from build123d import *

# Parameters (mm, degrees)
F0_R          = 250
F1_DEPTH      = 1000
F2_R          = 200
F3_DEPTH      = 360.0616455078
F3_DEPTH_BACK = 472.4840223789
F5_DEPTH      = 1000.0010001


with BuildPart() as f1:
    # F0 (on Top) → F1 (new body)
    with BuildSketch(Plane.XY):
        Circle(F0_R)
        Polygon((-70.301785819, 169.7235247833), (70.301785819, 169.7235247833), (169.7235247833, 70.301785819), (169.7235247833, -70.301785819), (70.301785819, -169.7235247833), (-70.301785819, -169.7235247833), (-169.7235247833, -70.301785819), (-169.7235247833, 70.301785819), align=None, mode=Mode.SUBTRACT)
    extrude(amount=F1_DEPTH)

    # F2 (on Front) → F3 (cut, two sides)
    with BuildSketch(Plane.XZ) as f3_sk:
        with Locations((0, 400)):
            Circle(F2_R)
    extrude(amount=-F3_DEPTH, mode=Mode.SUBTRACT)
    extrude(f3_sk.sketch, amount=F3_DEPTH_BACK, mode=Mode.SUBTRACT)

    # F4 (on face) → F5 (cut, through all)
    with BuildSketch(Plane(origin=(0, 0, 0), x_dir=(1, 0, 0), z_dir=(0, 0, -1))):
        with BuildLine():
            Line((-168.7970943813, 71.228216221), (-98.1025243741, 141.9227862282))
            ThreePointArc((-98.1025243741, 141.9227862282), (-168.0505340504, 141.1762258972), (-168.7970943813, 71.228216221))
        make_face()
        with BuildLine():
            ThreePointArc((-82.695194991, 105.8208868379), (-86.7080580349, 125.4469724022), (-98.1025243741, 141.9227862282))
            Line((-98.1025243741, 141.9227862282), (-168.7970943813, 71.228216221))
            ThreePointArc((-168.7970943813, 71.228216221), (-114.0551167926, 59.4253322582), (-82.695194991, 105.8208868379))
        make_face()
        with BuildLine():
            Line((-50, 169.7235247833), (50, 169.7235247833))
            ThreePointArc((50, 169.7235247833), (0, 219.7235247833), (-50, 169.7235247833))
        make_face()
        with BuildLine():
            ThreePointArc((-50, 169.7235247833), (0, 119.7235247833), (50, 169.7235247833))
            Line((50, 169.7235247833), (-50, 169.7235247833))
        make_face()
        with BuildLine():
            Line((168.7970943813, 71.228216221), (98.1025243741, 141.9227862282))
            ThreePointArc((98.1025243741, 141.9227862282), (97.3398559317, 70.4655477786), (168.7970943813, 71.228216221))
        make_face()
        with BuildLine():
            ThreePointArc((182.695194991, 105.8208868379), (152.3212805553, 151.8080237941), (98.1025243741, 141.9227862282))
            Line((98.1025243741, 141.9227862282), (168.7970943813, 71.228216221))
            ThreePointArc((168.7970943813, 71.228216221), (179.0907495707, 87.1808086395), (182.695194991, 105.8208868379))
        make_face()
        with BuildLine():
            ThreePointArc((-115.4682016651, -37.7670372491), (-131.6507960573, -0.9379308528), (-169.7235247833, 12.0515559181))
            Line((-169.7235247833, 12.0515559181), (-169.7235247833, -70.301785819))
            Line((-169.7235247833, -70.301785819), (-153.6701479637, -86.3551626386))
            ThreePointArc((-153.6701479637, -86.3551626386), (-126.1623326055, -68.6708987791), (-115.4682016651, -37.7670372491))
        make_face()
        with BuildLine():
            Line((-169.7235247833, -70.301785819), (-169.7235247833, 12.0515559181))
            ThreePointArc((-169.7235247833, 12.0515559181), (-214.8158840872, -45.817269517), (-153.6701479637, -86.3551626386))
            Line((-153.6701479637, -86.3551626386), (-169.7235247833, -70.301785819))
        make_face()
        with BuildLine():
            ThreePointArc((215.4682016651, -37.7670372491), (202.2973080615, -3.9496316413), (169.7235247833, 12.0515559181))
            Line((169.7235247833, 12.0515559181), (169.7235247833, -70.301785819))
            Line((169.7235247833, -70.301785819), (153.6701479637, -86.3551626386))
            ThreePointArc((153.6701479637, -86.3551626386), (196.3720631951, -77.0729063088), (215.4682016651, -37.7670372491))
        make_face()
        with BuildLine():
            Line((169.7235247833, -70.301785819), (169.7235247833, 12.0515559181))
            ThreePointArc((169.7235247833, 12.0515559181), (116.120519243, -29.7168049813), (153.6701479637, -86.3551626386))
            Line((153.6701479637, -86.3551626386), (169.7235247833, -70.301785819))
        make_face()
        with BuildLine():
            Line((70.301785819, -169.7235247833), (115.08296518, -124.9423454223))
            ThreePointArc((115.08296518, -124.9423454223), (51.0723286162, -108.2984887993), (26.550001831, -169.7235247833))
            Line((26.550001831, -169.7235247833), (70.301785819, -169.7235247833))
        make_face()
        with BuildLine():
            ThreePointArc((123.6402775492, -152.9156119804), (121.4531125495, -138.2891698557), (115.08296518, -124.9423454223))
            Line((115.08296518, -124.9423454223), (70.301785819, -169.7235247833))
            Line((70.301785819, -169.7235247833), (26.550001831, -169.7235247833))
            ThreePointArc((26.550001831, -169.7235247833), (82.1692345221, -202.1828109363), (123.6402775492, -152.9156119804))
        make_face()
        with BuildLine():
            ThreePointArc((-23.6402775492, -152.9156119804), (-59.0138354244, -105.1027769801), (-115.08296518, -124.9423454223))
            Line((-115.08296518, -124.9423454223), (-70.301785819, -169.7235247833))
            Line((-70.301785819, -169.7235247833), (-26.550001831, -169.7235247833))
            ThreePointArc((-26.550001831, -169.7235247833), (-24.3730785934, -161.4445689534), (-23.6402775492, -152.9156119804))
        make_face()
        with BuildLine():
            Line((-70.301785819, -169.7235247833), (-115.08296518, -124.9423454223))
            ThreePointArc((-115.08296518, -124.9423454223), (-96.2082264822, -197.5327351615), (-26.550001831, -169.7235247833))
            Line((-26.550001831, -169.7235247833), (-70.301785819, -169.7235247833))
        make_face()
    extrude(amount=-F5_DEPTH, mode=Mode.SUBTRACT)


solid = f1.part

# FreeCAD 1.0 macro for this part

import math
import FreeCAD as App
import Part
import Sketcher

V = App.Vector


def add_polygon(sketch, points):
    """Adds a closed chain of lines whose ends are joined by coincident constraints."""
    first, n = sketch.GeometryCount, len(points)
    for a, b in zip(points, points[1:] + points[:1]):
        sketch.addGeometry(Part.LineSegment(App.Vector(*a, 0), App.Vector(*b, 0)), False)
    for i in range(n):
        sketch.addConstraint(Sketcher.Constraint("Coincident", first + i, 2, first + (i + 1) % n, 1))

doc = App.newDocument("Part")
body = doc.addObject("PartDesign::Body", "Body")

sketch1 = doc.addObject("Sketcher::SketchObject", "Sketch")
body.addObject(sketch1)
sketch1.AttachmentSupport = (doc.XY_Plane, [""])
sketch1.MapMode = "FlatFace"
sketch1.addGeometry(Part.Circle(V(0, 0, 0), V(0, 0, 1), 250), False)
add_polygon(sketch1, [(-169.723525, 70.301786), (-70.301786, 169.723525), (70.301786, 169.723525), (169.723525, 70.301786), (169.723525, -70.301786), (70.301786, -169.723525), (-70.301786, -169.723525), (-169.723525, -70.301786)])
sketch1.addConstraint(Sketcher.Constraint("Horizontal", 2))
sketch1.addConstraint(Sketcher.Constraint("Vertical", 4))
sketch1.addConstraint(Sketcher.Constraint("Horizontal", 6))
sketch1.addConstraint(Sketcher.Constraint("Vertical", 8))
sketch1.addConstraint(Sketcher.Constraint("Coincident", 0, 3, -1, 1))
sketch1.addConstraint(Sketcher.Constraint("Symmetric", 1, 2, 5, 2, -1, 1))
sketch1.addConstraint(Sketcher.Constraint("Symmetric", 3, 2, 7, 2, -1, 1))
sketch1.addConstraint(Sketcher.Constraint("Perpendicular", 1, 3))
sketch1.addConstraint(Sketcher.Constraint("Perpendicular", 3, 5))
sketch1.addConstraint(Sketcher.Constraint("Perpendicular", 5, 7))
sketch1.addConstraint(Sketcher.Constraint("Horizontal", 4, 2, 7, 2))
sketch1.addConstraint(Sketcher.Constraint("Vertical", 2, 2, 5, 2))
sketch1.addConstraint(Sketcher.Constraint("Equal", 6, 4))
sketch1.addConstraint(Sketcher.Constraint("Diameter", 0, 500.0))
sketch1.addConstraint(Sketcher.Constraint("DistanceX", 2, 1, 2, 2, 140.603572))
sketch1.addConstraint(Sketcher.Constraint("Distance", 1, 140.603572))
pad1 = doc.addObject("PartDesign::Pad", "Pad")
body.addObject(pad1)
pad1.Profile = sketch1
pad1.Length = 1000

sketch2 = doc.addObject("Sketcher::SketchObject", "Sketch001")
body.addObject(sketch2)
sketch2.AttachmentSupport = (doc.XZ_Plane, [""])
sketch2.MapMode = "FlatFace"
sketch2.addGeometry(Part.Circle(V(0, 400, 0), V(0, 0, 1), 200), False)
sketch2.addConstraint(Sketcher.Constraint("PointOnObject", 0, 3, -2))
sketch2.addConstraint(Sketcher.Constraint("Diameter", 0, 400.0))
sketch2.addConstraint(Sketcher.Constraint("DistanceY", -1, 1, 0, 3, 400.0))
pocket1 = doc.addObject("PartDesign::Pocket", "Pocket")
body.addObject(pocket1)
pocket1.Profile = sketch2
pocket1.Type = "ThroughAll"
pocket1.Midplane = True

sketch3 = doc.addObject("Sketcher::SketchObject", "Sketch002")
body.addObject(sketch3)
sketch3.AttachmentSupport = (doc.XY_Plane, [""])
sketch3.MapMode = "FlatFace"
sketch3.addGeometry(Part.ArcOfCircle(Part.Circle(V(-132.695195, -105.820887, 0), V(0, 0, 1), 50), math.radians(0), math.radians(136.222998)), False)
sketch3.addGeometry(Part.ArcOfCircle(Part.Circle(V(-132.695195, -105.820887, 0), V(0, 0, 1), 50), math.radians(136.222998), math.radians(360)), False)
sketch3.addGeometry(Part.Circle(V(0, -169.723525, 0), V(0, 0, 1), 50), False)
sketch3.addGeometry(Part.ArcOfCircle(Part.Circle(V(132.695195, -105.820887, 0), V(0, 0, 1), 50), math.radians(43.777002), math.radians(226.222998)), False)
sketch3.addGeometry(Part.ArcOfCircle(Part.Circle(V(132.695195, -105.820887, 0), V(0, 0, 1), 50), math.radians(0), math.radians(43.777002)), False)
sketch3.addGeometry(Part.ArcOfCircle(Part.Circle(V(132.695195, -105.820887, 0), V(0, 0, 1), 50), math.radians(-133.777002), math.radians(0)), False)
sketch3.addGeometry(Part.ArcOfCircle(Part.Circle(V(-165.468202, 37.767037, 0), V(0, 0, 1), 50), math.radians(-94.882147), math.radians(0)), False)
sketch3.addGeometry(Part.ArcOfCircle(Part.Circle(V(-165.468202, 37.767037, 0), V(0, 0, 1), 50), math.radians(76.351718), math.radians(265.117853)), False)
sketch3.addGeometry(Part.ArcOfCircle(Part.Circle(V(-165.468202, 37.767037, 0), V(0, 0, 1), 50), math.radians(0), math.radians(76.351718)), False)
sketch3.addGeometry(Part.ArcOfCircle(Part.Circle(V(165.468202, 37.767037, 0), V(0, 0, 1), 50), math.radians(-85.117853), math.radians(103.648282)), False)
sketch3.addGeometry(Part.ArcOfCircle(Part.Circle(V(165.468202, 37.767037, 0), V(0, 0, 1), 50), math.radians(103.648282), math.radians(274.882147)), False)
sketch3.addGeometry(Part.ArcOfCircle(Part.Circle(V(73.640278, 152.915612, 0), V(0, 0, 1), 50), math.radians(0), math.radians(325.98117)), False)
sketch3.addGeometry(Part.ArcOfCircle(Part.Circle(V(73.640278, 152.915612, 0), V(0, 0, 1), 50), math.radians(-34.01883), math.radians(0)), False)
sketch3.addGeometry(Part.ArcOfCircle(Part.Circle(V(-73.640278, 152.915612, 0), V(0, 0, 1), 50), math.radians(19.642986), math.radians(360)), False)
sketch3.addGeometry(Part.ArcOfCircle(Part.Circle(V(-73.640278, 152.915612, 0), V(0, 0, 1), 50), math.radians(0), math.radians(19.642986)), False)
sketch3.addConstraint(Sketcher.Constraint("Tangent", 0, 1, 1, 2))
sketch3.addConstraint(Sketcher.Constraint("Coincident", 1, 1, 0, 2))
sketch3.addConstraint(Sketcher.Constraint("Tangent", 3, 1, 4, 2))
sketch3.addConstraint(Sketcher.Constraint("Tangent", 4, 1, 5, 2))
sketch3.addConstraint(Sketcher.Constraint("Tangent", 5, 1, 3, 2))
sketch3.addConstraint(Sketcher.Constraint("Tangent", 6, 1, 7, 2))
sketch3.addConstraint(Sketcher.Constraint("Tangent", 7, 1, 8, 2))
sketch3.addConstraint(Sketcher.Constraint("Tangent", 8, 1, 6, 2))
sketch3.addConstraint(Sketcher.Constraint("Tangent", 9, 1, 10, 2))
sketch3.addConstraint(Sketcher.Constraint("Coincident", 10, 1, 9, 2))
sketch3.addConstraint(Sketcher.Constraint("Tangent", 11, 1, 12, 2))
sketch3.addConstraint(Sketcher.Constraint("Coincident", 12, 1, 11, 2))
sketch3.addConstraint(Sketcher.Constraint("Tangent", 13, 1, 14, 2))
sketch3.addConstraint(Sketcher.Constraint("Coincident", 14, 1, 13, 2))
sketch3.addConstraint(Sketcher.Constraint("Equal", 1, 2))
sketch3.addConstraint(Sketcher.Constraint("Equal", 2, 3))
sketch3.addConstraint(Sketcher.Constraint("Equal", 5, 6))
sketch3.addConstraint(Sketcher.Constraint("Equal", 8, 9))
sketch3.addConstraint(Sketcher.Constraint("Equal", 10, 11))
sketch3.addConstraint(Sketcher.Constraint("Equal", 12, 13))
sketch3.addConstraint(Sketcher.Constraint("Symmetric", 0, 3, 3, 3, -2))
sketch3.addConstraint(Sketcher.Constraint("Symmetric", 6, 3, 9, 3, -2))
sketch3.addConstraint(Sketcher.Constraint("Symmetric", 11, 3, 13, 3, -2))
sketch3.addConstraint(Sketcher.Constraint("PointOnObject", 2, 3, -2))
sketch3.addConstraint(Sketcher.Constraint("Horizontal", 5, 3, 0, 1))
sketch3.addConstraint(Sketcher.Constraint("Horizontal", 1, 1, 3, 1))
sketch3.addConstraint(Sketcher.Constraint("Horizontal", 0, 1, 4, 1))
sketch3.addConstraint(Sketcher.Constraint("Horizontal", 10, 3, 8, 1))
sketch3.addConstraint(Sketcher.Constraint("Horizontal", 6, 1, 9, 1))
sketch3.addConstraint(Sketcher.Constraint("Horizontal", 7, 1, 10, 1))
sketch3.addConstraint(Sketcher.Constraint("Horizontal", 14, 3, 11, 1))
sketch3.addConstraint(Sketcher.Constraint("Horizontal", 11, 1, 14, 1))
sketch3.addConstraint(Sketcher.Constraint("Diameter", 2, 100.0))
sketch3.addConstraint(Sketcher.Constraint("DistanceX", 13, 1, -1, 1, 26.550002))
sketch3.addConstraint(Sketcher.Constraint("DistanceX", 6, 3, -1, 1, 165.468202))
sketch3.addConstraint(Sketcher.Constraint("DistanceX", 1, 1, 0, 3, 36.101899))
sketch3.addConstraint(Sketcher.Constraint("DistanceY", 5, 1, 3, 3, 36.101899))
sketch3.addConstraint(Sketcher.Constraint("DistanceY", -1, 1, 11, 3, 152.915612))
sketch3.addConstraint(Sketcher.Constraint("DistanceX", 0, 3, 3, 3, 265.39039))
sketch3.addConstraint(Sketcher.Constraint("DistanceX", 6, 3, 11, 3, 239.108479))
sketch3.addConstraint(Sketcher.Constraint("DistanceX", 6, 1, 1, 1, 0.92643))
sketch3.addConstraint(Sketcher.Constraint("DistanceY", 1, 1, 6, 1, 59.17666))
sketch3.addConstraint(Sketcher.Constraint("DistanceY", 6, 1, 7, 1, 98.406719))
sketch3.addConstraint(Sketcher.Constraint("DistanceY", 7, 1, 14, 3, 66.560449))
sketch3.addConstraint(Sketcher.Constraint("DistanceY", 9, 3, 12, 1, 87.175308))
sketch3.addConstraint(Sketcher.Constraint("DistanceY", 2, 3, -1, 1, 169.723525))
pocket2 = doc.addObject("PartDesign::Pocket", "Pocket001")
body.addObject(pocket2)
pocket2.Profile = sketch3
pocket2.Type = "ThroughAll"
pocket2.Reversed = True

doc.recompute()
